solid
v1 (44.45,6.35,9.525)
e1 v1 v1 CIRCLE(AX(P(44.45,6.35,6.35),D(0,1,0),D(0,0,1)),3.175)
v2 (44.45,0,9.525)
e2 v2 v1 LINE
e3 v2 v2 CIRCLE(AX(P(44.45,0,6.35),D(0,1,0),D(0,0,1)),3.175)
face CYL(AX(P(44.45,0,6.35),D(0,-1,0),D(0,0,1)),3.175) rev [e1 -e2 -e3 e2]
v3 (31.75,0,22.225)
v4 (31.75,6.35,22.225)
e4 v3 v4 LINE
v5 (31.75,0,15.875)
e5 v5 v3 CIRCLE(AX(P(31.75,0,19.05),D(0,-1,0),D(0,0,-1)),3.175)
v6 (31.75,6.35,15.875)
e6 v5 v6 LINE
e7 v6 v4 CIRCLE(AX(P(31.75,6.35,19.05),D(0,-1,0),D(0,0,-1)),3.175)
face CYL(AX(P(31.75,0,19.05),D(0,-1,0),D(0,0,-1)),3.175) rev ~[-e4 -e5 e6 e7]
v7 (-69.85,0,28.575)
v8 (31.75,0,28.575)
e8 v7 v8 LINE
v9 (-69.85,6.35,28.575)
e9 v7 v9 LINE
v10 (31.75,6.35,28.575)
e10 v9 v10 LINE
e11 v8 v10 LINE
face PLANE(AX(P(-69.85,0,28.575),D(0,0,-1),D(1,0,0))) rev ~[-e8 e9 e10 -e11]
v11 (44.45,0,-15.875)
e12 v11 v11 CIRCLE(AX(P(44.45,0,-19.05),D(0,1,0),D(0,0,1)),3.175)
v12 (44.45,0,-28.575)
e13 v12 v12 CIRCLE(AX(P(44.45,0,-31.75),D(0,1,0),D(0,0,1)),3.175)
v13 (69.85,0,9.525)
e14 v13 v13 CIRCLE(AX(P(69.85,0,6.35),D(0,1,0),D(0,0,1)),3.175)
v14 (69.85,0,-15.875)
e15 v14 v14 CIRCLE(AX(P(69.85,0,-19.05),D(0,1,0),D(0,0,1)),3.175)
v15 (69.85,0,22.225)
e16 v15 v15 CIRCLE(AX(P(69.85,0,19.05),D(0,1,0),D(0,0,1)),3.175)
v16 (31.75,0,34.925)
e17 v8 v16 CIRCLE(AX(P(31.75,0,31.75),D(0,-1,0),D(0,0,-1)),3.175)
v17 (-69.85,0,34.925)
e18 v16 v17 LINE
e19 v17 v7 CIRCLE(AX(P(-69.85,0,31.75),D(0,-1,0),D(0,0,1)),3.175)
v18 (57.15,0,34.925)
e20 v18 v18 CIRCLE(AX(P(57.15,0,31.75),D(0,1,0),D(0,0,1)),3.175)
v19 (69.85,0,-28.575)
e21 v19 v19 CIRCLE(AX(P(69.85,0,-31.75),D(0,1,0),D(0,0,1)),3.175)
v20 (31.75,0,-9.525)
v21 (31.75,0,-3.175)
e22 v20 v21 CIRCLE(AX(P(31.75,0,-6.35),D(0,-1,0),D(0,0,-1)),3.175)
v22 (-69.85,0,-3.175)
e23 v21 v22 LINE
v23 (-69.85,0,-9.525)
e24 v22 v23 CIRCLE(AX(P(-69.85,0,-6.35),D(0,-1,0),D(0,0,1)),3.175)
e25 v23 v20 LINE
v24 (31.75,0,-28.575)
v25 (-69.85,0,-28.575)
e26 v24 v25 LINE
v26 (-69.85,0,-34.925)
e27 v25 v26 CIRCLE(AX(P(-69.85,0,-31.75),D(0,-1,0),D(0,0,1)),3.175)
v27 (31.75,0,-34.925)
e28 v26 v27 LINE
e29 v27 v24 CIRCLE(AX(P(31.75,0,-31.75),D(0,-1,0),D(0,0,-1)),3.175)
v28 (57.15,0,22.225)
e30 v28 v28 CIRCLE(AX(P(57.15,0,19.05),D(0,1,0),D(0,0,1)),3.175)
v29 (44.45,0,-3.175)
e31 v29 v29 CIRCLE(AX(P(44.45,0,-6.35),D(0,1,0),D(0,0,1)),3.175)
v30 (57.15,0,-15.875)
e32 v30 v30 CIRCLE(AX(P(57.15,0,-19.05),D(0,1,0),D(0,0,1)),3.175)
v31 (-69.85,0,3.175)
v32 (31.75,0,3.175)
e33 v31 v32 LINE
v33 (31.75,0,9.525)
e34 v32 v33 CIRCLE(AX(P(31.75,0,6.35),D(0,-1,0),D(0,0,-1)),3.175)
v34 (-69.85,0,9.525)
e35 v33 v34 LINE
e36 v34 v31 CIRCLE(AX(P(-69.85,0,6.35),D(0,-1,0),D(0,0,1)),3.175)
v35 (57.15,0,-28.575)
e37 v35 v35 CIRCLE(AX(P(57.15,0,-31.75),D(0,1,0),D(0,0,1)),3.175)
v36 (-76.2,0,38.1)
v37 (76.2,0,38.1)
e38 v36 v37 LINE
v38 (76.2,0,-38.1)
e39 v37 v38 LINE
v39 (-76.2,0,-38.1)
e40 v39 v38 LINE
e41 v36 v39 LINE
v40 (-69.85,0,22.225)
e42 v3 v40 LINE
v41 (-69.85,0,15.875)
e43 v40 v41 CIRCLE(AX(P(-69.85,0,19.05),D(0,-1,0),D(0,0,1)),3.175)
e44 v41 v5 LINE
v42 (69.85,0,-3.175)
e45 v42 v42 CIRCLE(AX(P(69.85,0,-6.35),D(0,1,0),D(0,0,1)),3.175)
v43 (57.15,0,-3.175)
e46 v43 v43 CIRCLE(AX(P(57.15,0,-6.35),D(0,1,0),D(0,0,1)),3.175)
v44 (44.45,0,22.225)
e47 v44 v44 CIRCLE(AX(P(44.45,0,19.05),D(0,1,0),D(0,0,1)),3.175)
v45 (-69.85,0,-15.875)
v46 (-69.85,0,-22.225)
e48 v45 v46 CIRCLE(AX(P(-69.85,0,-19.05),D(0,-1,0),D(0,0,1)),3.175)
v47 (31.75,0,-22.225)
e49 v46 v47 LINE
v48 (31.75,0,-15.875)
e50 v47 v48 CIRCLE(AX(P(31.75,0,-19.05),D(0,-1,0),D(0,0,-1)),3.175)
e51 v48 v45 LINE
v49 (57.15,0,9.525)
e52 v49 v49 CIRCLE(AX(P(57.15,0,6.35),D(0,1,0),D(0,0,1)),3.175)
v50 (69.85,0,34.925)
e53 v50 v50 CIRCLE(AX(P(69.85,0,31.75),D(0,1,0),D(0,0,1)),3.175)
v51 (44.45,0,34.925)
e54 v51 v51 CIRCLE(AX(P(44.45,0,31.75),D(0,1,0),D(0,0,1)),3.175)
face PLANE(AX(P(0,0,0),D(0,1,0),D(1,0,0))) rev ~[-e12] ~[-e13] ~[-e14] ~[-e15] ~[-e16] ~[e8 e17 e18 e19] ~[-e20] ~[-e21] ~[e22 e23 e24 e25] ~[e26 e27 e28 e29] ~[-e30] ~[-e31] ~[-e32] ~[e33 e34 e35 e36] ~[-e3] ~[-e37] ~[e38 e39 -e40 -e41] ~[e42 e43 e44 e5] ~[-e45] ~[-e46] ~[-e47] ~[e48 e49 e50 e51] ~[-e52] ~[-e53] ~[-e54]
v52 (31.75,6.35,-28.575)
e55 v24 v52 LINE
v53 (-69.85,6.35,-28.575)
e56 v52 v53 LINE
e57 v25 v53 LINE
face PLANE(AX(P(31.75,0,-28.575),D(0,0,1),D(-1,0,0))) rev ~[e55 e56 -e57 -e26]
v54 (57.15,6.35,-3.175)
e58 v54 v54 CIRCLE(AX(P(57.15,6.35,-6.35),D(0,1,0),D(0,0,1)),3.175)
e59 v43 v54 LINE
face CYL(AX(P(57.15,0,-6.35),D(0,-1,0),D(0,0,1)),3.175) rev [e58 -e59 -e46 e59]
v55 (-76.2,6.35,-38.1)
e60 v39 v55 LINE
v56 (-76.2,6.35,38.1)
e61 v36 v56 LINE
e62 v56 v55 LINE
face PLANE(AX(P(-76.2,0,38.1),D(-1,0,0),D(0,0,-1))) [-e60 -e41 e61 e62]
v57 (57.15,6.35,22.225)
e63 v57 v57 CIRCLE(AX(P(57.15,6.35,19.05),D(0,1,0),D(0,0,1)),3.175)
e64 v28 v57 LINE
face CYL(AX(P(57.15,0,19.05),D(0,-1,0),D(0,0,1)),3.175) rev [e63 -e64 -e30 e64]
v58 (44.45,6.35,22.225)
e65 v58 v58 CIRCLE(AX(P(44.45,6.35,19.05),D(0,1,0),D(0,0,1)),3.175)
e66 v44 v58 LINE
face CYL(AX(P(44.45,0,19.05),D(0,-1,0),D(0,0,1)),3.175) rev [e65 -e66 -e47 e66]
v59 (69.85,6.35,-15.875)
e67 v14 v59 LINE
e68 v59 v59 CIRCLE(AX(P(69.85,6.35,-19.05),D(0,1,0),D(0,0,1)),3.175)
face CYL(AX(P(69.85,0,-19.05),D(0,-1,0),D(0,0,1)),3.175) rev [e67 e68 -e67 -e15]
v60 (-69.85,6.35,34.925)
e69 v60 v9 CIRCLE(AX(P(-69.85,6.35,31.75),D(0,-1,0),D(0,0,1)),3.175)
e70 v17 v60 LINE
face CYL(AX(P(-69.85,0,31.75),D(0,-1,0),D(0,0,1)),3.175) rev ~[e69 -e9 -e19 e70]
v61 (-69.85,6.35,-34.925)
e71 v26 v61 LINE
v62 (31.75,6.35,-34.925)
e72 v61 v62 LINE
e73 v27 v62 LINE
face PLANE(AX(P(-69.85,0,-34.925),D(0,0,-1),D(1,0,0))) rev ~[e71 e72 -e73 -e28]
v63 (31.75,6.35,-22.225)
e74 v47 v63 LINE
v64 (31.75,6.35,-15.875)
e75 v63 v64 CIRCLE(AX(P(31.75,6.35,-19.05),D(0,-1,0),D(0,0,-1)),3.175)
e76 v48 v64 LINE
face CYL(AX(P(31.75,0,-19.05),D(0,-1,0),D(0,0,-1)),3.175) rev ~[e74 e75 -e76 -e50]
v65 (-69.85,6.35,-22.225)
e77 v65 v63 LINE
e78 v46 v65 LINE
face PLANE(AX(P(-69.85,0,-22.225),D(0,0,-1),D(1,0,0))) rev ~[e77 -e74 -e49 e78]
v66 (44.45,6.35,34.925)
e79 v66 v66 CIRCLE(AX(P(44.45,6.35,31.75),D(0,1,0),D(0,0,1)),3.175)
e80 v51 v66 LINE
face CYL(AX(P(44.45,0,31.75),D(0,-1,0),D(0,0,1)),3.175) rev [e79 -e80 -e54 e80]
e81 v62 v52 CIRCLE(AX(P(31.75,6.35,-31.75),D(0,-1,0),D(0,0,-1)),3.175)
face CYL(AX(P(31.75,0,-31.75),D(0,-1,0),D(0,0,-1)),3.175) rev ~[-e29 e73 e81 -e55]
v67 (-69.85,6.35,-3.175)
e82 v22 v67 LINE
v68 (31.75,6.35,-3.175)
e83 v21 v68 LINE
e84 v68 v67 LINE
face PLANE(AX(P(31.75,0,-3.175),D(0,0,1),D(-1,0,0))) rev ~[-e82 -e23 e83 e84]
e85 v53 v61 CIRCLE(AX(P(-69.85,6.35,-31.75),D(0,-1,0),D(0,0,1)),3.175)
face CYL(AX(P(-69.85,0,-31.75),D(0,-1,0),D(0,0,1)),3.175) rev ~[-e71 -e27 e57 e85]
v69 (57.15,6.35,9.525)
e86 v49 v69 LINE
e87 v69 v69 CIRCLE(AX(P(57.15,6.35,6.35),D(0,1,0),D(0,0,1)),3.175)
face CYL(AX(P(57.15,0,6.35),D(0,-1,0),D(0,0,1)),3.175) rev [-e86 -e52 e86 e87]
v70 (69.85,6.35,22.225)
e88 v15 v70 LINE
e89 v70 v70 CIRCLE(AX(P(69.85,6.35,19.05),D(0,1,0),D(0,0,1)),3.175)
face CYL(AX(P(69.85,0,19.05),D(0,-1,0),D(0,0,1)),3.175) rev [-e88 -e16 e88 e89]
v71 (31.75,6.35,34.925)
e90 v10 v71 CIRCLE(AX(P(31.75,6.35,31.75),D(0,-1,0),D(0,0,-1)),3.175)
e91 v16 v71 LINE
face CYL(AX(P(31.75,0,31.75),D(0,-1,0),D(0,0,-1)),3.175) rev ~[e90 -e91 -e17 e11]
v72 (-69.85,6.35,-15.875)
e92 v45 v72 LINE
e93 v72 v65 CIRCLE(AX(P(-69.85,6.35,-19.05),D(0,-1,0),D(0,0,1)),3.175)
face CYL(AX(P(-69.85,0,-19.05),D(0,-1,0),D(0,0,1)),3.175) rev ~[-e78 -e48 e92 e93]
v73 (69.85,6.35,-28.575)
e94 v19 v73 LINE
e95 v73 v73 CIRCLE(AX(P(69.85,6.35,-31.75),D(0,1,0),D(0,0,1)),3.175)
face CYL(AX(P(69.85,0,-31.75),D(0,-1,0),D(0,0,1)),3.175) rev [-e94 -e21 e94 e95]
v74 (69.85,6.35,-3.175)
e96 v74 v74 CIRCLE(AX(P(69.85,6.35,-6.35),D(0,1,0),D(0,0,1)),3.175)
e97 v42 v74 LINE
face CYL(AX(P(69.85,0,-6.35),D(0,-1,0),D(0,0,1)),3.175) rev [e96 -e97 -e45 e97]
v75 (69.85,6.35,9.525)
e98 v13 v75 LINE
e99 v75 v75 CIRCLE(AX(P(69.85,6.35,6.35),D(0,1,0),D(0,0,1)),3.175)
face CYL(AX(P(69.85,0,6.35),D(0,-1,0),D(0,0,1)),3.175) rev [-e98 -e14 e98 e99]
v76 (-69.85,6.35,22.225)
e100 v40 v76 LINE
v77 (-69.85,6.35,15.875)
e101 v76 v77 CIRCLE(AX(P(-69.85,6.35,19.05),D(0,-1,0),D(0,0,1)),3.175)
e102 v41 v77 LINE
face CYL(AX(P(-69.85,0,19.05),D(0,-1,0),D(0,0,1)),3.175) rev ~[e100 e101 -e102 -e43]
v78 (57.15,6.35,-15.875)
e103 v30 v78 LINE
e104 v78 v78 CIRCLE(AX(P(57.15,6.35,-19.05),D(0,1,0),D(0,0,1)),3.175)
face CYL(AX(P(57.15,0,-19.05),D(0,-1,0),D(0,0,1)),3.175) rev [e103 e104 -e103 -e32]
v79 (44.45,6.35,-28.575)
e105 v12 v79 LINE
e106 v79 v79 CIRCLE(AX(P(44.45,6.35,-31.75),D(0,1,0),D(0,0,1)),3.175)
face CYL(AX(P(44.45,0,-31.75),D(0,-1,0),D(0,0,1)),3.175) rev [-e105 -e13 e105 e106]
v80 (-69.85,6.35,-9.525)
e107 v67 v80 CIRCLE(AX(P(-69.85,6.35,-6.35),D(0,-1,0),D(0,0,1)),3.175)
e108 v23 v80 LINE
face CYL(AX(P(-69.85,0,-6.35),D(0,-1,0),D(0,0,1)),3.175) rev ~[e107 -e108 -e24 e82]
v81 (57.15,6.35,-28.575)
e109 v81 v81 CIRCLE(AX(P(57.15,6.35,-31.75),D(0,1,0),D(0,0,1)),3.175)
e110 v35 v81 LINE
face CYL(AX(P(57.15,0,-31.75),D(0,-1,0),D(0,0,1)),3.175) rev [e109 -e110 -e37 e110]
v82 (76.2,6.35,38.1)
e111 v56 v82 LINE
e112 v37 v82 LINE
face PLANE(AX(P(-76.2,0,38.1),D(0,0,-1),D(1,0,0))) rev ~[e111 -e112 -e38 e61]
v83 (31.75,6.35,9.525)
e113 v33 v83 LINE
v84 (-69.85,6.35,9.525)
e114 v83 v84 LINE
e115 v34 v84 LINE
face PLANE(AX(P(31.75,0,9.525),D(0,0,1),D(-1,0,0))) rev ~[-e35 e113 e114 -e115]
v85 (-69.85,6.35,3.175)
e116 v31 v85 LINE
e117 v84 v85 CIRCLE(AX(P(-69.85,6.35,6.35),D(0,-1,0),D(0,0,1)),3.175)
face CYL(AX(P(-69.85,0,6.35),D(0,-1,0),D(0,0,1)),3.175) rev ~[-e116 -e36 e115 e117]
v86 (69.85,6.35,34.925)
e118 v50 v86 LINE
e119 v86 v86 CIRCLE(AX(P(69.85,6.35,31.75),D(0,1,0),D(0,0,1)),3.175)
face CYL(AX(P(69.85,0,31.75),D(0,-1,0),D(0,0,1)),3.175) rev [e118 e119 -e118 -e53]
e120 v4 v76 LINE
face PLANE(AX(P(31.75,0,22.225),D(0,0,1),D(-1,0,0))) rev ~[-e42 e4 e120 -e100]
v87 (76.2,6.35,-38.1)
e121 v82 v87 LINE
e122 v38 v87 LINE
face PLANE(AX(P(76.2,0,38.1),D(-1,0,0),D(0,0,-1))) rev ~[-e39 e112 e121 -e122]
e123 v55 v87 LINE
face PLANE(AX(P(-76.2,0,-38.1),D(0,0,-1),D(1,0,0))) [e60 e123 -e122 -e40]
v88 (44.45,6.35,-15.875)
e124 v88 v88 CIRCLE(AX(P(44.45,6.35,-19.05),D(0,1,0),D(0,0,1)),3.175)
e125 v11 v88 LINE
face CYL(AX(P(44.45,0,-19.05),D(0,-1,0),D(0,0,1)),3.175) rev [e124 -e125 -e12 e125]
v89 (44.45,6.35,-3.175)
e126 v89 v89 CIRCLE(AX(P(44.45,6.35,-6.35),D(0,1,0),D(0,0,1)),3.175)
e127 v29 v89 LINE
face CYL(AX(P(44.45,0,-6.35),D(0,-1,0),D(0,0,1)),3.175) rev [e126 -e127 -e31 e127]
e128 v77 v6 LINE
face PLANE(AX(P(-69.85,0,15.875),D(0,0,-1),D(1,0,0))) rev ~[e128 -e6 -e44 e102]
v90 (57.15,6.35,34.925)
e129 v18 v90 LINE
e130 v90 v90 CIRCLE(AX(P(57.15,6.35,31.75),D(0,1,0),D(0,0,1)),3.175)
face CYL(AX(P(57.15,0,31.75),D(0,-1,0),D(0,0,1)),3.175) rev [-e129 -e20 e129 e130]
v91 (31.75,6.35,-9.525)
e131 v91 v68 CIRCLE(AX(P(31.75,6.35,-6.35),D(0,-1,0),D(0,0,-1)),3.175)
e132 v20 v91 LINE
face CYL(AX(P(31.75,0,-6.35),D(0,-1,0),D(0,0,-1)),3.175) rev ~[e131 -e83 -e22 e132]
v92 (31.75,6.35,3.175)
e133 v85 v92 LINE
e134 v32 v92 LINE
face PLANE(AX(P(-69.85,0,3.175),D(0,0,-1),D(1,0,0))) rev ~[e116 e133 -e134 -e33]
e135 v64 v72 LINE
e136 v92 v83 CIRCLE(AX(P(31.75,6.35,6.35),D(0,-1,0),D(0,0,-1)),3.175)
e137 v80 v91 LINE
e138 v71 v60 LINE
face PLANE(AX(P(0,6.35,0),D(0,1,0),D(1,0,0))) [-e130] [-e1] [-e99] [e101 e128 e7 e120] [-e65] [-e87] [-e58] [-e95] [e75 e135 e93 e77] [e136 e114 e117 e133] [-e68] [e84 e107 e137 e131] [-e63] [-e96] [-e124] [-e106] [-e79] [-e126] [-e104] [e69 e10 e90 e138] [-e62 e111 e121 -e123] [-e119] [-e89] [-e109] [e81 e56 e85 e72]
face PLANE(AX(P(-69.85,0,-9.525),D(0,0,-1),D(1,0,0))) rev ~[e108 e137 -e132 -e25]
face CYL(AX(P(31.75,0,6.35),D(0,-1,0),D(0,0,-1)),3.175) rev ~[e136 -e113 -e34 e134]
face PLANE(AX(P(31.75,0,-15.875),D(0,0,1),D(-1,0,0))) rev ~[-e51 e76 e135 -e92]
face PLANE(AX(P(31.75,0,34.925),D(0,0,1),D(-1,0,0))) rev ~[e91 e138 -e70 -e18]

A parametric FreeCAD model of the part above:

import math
import FreeCAD as App
import Part
import Sketcher
from FreeCAD import Vector
Q = App.Units.Quantity

doc = App.newDocument("Part")
body = doc.addObject("PartDesign::Body", "Body")

# Sketch on XZ plane
sketch1 = body.newObject("Sketcher::SketchObject", "Sketch")
sketch1.AttachmentSupport = (doc.getObject("XZ_Plane"), [""])
sketch1.MapMode = "FlatFace"
sketch1.addGeometry([
    Part.LineSegment(Vector(-76.2, -38.1, 0), Vector(-76.2, 38.1, 0)),  # 0
    Part.LineSegment(Vector(-76.2, 38.1, 0), Vector(76.2, 38.1, 0)),  # 1
    Part.LineSegment(Vector(76.2, 38.1, 0), Vector(76.2, -38.1, 0)),  # 2
    Part.LineSegment(Vector(76.2, -38.1, 0), Vector(-76.2, -38.1, 0)),  # 3
    Part.ArcOfCircle(Part.Circle(Vector(31.8, 31.8, 0), Vector(0, 0, 1), 3.2), math.radians(-90), math.radians(90)),  # 4
    Part.LineSegment(Vector(31.8, 34.9, 0), Vector(-69.8, 34.9, 0)),  # 5
    Part.ArcOfCircle(Part.Circle(Vector(-69.8, 31.8, 0), Vector(0, 0, 1), 3.2), math.radians(90), math.radians(270)),  # 6
    Part.LineSegment(Vector(-69.8, 28.6, 0), Vector(31.8, 28.6, 0)),  # 7
    Part.ArcOfCircle(Part.Circle(Vector(31.8, 19.1, 0), Vector(0, 0, 1), 3.2), math.radians(-90), math.radians(90)),  # 8
    Part.LineSegment(Vector(31.8, 22.2, 0), Vector(-69.8, 22.2, 0)),  # 9
    Part.ArcOfCircle(Part.Circle(Vector(-69.8, 19.1, 0), Vector(0, 0, 1), 3.2), math.radians(90), math.radians(270)),  # 10
    Part.LineSegment(Vector(-69.8, 15.9, 0), Vector(31.8, 15.9, 0)),  # 11
    Part.ArcOfCircle(Part.Circle(Vector(31.8, 6.3, 0), Vector(0, 0, 1), 3.2), math.radians(-90), math.radians(90)),  # 12
    Part.LineSegment(Vector(31.8, 9.5, 0), Vector(-69.8, 9.5, 0)),  # 13
    Part.ArcOfCircle(Part.Circle(Vector(-69.8, 6.3, 0), Vector(0, 0, 1), 3.2), math.radians(90), math.radians(270)),  # 14
    Part.LineSegment(Vector(-69.8, 3.2, 0), Vector(31.8, 3.2, 0)),  # 15
    Part.Circle(Vector(44.5, 31.8, 0), Vector(0, 0, 1), 3.2),  # 16
    Part.Circle(Vector(57.1, 31.8, 0), Vector(0, 0, 1), 3.2),  # 17
    Part.Circle(Vector(69.8, 31.8, 0), Vector(0, 0, 1), 3.2),  # 18
    Part.Circle(Vector(44.5, 19.1, 0), Vector(0, 0, 1), 3.2),  # 19
    Part.Circle(Vector(57.1, 19.1, 0), Vector(0, 0, 1), 3.2),  # 20
    Part.Circle(Vector(69.8, 19.1, 0), Vector(0, 0, 1), 3.2),  # 21
    Part.Circle(Vector(44.5, 6.3, 0), Vector(0, 0, 1), 3.2),  # 22
    Part.Circle(Vector(57.1, 6.3, 0), Vector(0, 0, 1), 3.2),  # 23
    Part.Circle(Vector(69.8, 6.3, 0), Vector(0, 0, 1), 3.2),  # 24
    Part.ArcOfCircle(Part.Circle(Vector(31.8, -6.3, 0), Vector(0, 0, 1), 3.2), math.radians(-90), math.radians(90)),  # 25
    Part.LineSegment(Vector(31.8, -3.2, 0), Vector(-69.8, -3.2, 0)),  # 26
    Part.ArcOfCircle(Part.Circle(Vector(-69.8, -6.3, 0), Vector(0, 0, 1), 3.2), math.radians(90), math.radians(270)),  # 27
    Part.LineSegment(Vector(-69.8, -9.5, 0), Vector(31.8, -9.5, 0)),  # 28
    Part.ArcOfCircle(Part.Circle(Vector(31.8, -19.1, 0), Vector(0, 0, 1), 3.2), math.radians(-90), math.radians(90)),  # 29
    Part.LineSegment(Vector(31.8, -15.9, 0), Vector(-69.8, -15.9, 0)),  # 30
    Part.ArcOfCircle(Part.Circle(Vector(-69.8, -19.1, 0), Vector(0, 0, 1), 3.2), math.radians(90), math.radians(270)),  # 31
    Part.LineSegment(Vector(-69.8, -22.2, 0), Vector(31.8, -22.2, 0)),  # 32
    Part.ArcOfCircle(Part.Circle(Vector(-69.8, -31.8, 0), Vector(0, 0, 1), 3.2), math.radians(90), math.radians(270)),  # 33
    Part.LineSegment(Vector(-69.8, -34.9, 0), Vector(31.8, -34.9, 0)),  # 34
    Part.ArcOfCircle(Part.Circle(Vector(31.8, -31.8, 0), Vector(0, 0, 1), 3.2), math.radians(-90), math.radians(90)),  # 35
    Part.LineSegment(Vector(31.8, -28.6, 0), Vector(-69.8, -28.6, 0)),  # 36
    Part.Circle(Vector(44.5, -6.3, 0), Vector(0, 0, 1), 3.2),  # 37
    Part.Circle(Vector(57.1, -6.3, 0), Vector(0, 0, 1), 3.2),  # 38
    Part.Circle(Vector(69.8, -6.3, 0), Vector(0, 0, 1), 3.2),  # 39
    Part.Circle(Vector(44.5, -19.1, 0), Vector(0, 0, 1), 3.2),  # 40
    Part.Circle(Vector(57.1, -19.1, 0), Vector(0, 0, 1), 3.2),  # 41
    Part.Circle(Vector(69.8, -19.1, 0), Vector(0, 0, 1), 3.2),  # 42
    Part.Circle(Vector(44.5, -31.8, 0), Vector(0, 0, 1), 3.2),  # 43
    Part.Circle(Vector(57.1, -31.8, 0), Vector(0, 0, 1), 3.2),  # 44
    Part.Circle(Vector(69.8, -31.8, 0), Vector(0, 0, 1), 3.2),  # 45
], False)
sketch1.addConstraint([
    Sketcher.Constraint("Coincident", 0, 2, 1, 1),
    Sketcher.Constraint("Coincident", 1, 2, 2, 1),
    Sketcher.Constraint("Coincident", 2, 2, 3, 1),
    Sketcher.Constraint("Coincident", 3, 2, 0, 1),
    Sketcher.Constraint("Tangent", 4, 2, 5, 1),
    Sketcher.Constraint("Tangent", 5, 2, 6, 1),
    Sketcher.Constraint("Tangent", 6, 2, 7, 1),
    Sketcher.Constraint("Tangent", 7, 2, 4, 1),
    Sketcher.Constraint("Tangent", 8, 2, 9, 1),
    Sketcher.Constraint("Tangent", 9, 2, 10, 1),
    Sketcher.Constraint("Tangent", 10, 2, 11, 1),
    Sketcher.Constraint("Tangent", 11, 2, 8, 1),
    Sketcher.Constraint("Tangent", 12, 2, 13, 1),
    Sketcher.Constraint("Tangent", 13, 2, 14, 1),
    Sketcher.Constraint("Tangent", 14, 2, 15, 1),
    Sketcher.Constraint("Tangent", 15, 2, 12, 1),
    Sketcher.Constraint("Tangent", 25, 2, 26, 1),
    Sketcher.Constraint("Tangent", 26, 2, 27, 1),
    Sketcher.Constraint("Tangent", 27, 2, 28, 1),
    Sketcher.Constraint("Tangent", 28, 2, 25, 1),
    Sketcher.Constraint("Tangent", 29, 2, 30, 1),
    Sketcher.Constraint("Tangent", 30, 2, 31, 1),
    Sketcher.Constraint("Tangent", 31, 2, 32, 1),
    Sketcher.Constraint("Tangent", 32, 2, 29, 1),
    Sketcher.Constraint("Tangent", 33, 2, 34, 1),
    Sketcher.Constraint("Tangent", 34, 2, 35, 1),
    Sketcher.Constraint("Tangent", 35, 2, 36, 1),
    Sketcher.Constraint("Tangent", 36, 2, 33, 1),
    Sketcher.Constraint("Vertical", 0),
    Sketcher.Constraint("Horizontal", 1),
    Sketcher.Constraint("Vertical", 2),
    Sketcher.Constraint("Horizontal", 3),
    Sketcher.Constraint("Horizontal", 5),
    Sketcher.Constraint("Horizontal", 7),
    Sketcher.Constraint("Horizontal", 9),
    Sketcher.Constraint("Horizontal", 11),
    Sketcher.Constraint("Horizontal", 13),
    Sketcher.Constraint("Horizontal", 15),
    Sketcher.Constraint("Horizontal", 26),
    Sketcher.Constraint("Horizontal", 28),
    Sketcher.Constraint("Horizontal", 30),
    Sketcher.Constraint("Horizontal", 32),
    Sketcher.Constraint("Horizontal", 34),
    Sketcher.Constraint("Horizontal", 36),
    Sketcher.Constraint("Equal", 6, 8),
    Sketcher.Constraint("Equal", 10, 12),
    Sketcher.Constraint("Equal", 14, 16),
    Sketcher.Constraint("Equal", 16, 17),
    Sketcher.Constraint("Equal", 17, 18),
    Sketcher.Constraint("Equal", 18, 19),
    Sketcher.Constraint("Equal", 19, 20),
    Sketcher.Constraint("Equal", 20, 21),
    Sketcher.Constraint("Equal", 21, 22),
    Sketcher.Constraint("Equal", 22, 23),
    Sketcher.Constraint("Equal", 23, 24),
    Sketcher.Constraint("Equal", 24, 25),
    Sketcher.Constraint("Equal", 27, 29),
    Sketcher.Constraint("Equal", 31, 33),
    Sketcher.Constraint("Equal", 35, 37),
    Sketcher.Constraint("Equal", 37, 38),
    Sketcher.Constraint("Equal", 38, 39),
    Sketcher.Constraint("Equal", 39, 40),
    Sketcher.Constraint("Equal", 40, 41),
    Sketcher.Constraint("Equal", 41, 42),
    Sketcher.Constraint("Equal", 42, 43),
    Sketcher.Constraint("Equal", 43, 44),
    Sketcher.Constraint("Equal", 44, 45),
    Sketcher.Constraint("Symmetric", 24, 3, 27, 3, -1, 1),
    Sketcher.Constraint("Symmetric", 21, 3, 31, 3, -1, 1),
    Sketcher.Constraint("Symmetric", 18, 3, 33, 3, -1, 1),
    Sketcher.Constraint("Symmetric", 14, 3, 39, 3, -1, 1),
    Sketcher.Constraint("Symmetric", 10, 3, 42, 3, -1, 1),
    Sketcher.Constraint("Symmetric", 6, 3, 45, 3, -1, 1),
    Sketcher.Constraint("Symmetric", 0, 2, 2, 2, -1, 1),
    Sketcher.Constraint("Symmetric", 6, 3, 18, 3, -2),
    Sketcher.Constraint("Symmetric", 10, 3, 21, 3, -2),
    Sketcher.Constraint("Symmetric", 14, 3, 24, 3, -2),
    Sketcher.Constraint("Symmetric", 22, 3, 37, 3, -1),
    Sketcher.Constraint("Symmetric", 23, 3, 38, 3, -1),
    Sketcher.Constraint("Symmetric", 19, 3, 40, 3, -1),
    Sketcher.Constraint("Symmetric", 20, 3, 41, 3, -1),
    Sketcher.Constraint("Symmetric", 16, 3, 43, 3, -1),
    Sketcher.Constraint("Symmetric", 17, 3, 44, 3, -1),
    Sketcher.Constraint("Horizontal", 6, 3, 16, 3),
    Sketcher.Constraint("Horizontal", 16, 3, 17, 3),
    Sketcher.Constraint("Horizontal", 10, 3, 19, 3),
    Sketcher.Constraint("Horizontal", 19, 3, 20, 3),
    Sketcher.Constraint("Horizontal", 14, 3, 22, 3),
    Sketcher.Constraint("Horizontal", 22, 3, 23, 3),
    Sketcher.Constraint("Vertical", 4, 3, 8, 3),
    Sketcher.Constraint("Vertical", 6, 3, 10, 3),
    Sketcher.Constraint("Vertical", 8, 3, 12, 3),
    Sketcher.Constraint("Vertical", 10, 3, 14, 3),
    Sketcher.Constraint("Vertical", 16, 3, 19, 3),
    Sketcher.Constraint("Vertical", 17, 3, 20, 3),
    Sketcher.Constraint("Vertical", 19, 3, 22, 3),
    Sketcher.Constraint("Vertical", 20, 3, 23, 3),
    Sketcher.Constraint("Vertical", 12, 3, 25, 3),
    Sketcher.Constraint("Vertical", 25, 3, 29, 3),
    Sketcher.Constraint("Vertical", 29, 3, 35, 3),
    Sketcher.Constraint("Diameter", 16, Q("0.25 in")),
    Sketcher.Constraint("DistanceX", 1, 1, 1, 2, Q("6 in")),
    Sketcher.Constraint("DistanceX", 5, 2, 5, 1, Q("4 in")),
    Sketcher.Constraint("DistanceY", 0, 1, 0, 2, Q("3 in")),
    Sketcher.Constraint("DistanceY", 12, 3, 4, 3, Q("1 in")),
    Sketcher.Constraint("DistanceX", 4, 3, 17, 3, Q("1 in")),
    Sketcher.Constraint("DistanceX", 16, 3, 18, 3, Q("1 in")),
    Sketcher.Constraint("DistanceY", 25, 3, 8, 3, Q("1 in")),
    Sketcher.Constraint("DistanceY", 8, 3, 4, 3, Q("0.5 in")),
    Sketcher.Constraint("DistanceX", 4, 3, 16, 3, Q("0.5 in")),
])
pad1 = body.newObject("PartDesign::Pad", "Pad")
pad1.Profile = sketch1
pad1.Length = Q("0.25 in")
pad1.Reversed = True

doc.recompute()
